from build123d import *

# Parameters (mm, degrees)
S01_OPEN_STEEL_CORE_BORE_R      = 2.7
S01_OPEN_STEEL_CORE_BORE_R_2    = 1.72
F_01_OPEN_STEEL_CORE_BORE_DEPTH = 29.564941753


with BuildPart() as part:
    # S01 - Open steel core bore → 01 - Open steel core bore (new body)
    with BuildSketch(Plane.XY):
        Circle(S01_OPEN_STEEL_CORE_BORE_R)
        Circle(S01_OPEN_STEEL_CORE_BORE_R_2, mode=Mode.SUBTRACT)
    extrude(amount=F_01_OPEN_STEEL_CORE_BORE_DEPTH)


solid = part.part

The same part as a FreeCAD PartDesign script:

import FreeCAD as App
import Part
import Sketcher
from FreeCAD import Vector
Q = App.Units.Quantity

doc = App.newDocument("Part")
body = doc.addObject("PartDesign::Body", "Body")

sketch1 = doc.addObject("Sketcher::SketchObject", "Sketch")
body.addObject(sketch1)
sketch1.AttachmentSupport = (doc.XY_Plane, [""])
sketch1.MapMode = "FlatFace"
sketch1.addGeometry(Part.Circle(Vector(0, 0, 0), Vector(0, 0, 1), 2.7), False)
sketch1.addGeometry(Part.Circle(Vector(0, 0, 0), Vector(0, 0, 1), 1.72), False)
sketch1.addConstraint(Sketcher.Constraint("Coincident", 0, 3, -1, 1))
sketch1.addConstraint(Sketcher.Constraint("Coincident", 1, 3, -1, 1))
sketch1.addConstraint(Sketcher.Constraint("Diameter", 0, Q("5.4 mm")))
sketch1.addConstraint(Sketcher.Constraint("Diameter", 1, Q("3.44 mm")))
pad1 = doc.addObject("PartDesign::Pad", "Pad")
body.addObject(pad1)
pad1.Profile = sketch1
pad1.Length = 29.564942

doc.recompute()
